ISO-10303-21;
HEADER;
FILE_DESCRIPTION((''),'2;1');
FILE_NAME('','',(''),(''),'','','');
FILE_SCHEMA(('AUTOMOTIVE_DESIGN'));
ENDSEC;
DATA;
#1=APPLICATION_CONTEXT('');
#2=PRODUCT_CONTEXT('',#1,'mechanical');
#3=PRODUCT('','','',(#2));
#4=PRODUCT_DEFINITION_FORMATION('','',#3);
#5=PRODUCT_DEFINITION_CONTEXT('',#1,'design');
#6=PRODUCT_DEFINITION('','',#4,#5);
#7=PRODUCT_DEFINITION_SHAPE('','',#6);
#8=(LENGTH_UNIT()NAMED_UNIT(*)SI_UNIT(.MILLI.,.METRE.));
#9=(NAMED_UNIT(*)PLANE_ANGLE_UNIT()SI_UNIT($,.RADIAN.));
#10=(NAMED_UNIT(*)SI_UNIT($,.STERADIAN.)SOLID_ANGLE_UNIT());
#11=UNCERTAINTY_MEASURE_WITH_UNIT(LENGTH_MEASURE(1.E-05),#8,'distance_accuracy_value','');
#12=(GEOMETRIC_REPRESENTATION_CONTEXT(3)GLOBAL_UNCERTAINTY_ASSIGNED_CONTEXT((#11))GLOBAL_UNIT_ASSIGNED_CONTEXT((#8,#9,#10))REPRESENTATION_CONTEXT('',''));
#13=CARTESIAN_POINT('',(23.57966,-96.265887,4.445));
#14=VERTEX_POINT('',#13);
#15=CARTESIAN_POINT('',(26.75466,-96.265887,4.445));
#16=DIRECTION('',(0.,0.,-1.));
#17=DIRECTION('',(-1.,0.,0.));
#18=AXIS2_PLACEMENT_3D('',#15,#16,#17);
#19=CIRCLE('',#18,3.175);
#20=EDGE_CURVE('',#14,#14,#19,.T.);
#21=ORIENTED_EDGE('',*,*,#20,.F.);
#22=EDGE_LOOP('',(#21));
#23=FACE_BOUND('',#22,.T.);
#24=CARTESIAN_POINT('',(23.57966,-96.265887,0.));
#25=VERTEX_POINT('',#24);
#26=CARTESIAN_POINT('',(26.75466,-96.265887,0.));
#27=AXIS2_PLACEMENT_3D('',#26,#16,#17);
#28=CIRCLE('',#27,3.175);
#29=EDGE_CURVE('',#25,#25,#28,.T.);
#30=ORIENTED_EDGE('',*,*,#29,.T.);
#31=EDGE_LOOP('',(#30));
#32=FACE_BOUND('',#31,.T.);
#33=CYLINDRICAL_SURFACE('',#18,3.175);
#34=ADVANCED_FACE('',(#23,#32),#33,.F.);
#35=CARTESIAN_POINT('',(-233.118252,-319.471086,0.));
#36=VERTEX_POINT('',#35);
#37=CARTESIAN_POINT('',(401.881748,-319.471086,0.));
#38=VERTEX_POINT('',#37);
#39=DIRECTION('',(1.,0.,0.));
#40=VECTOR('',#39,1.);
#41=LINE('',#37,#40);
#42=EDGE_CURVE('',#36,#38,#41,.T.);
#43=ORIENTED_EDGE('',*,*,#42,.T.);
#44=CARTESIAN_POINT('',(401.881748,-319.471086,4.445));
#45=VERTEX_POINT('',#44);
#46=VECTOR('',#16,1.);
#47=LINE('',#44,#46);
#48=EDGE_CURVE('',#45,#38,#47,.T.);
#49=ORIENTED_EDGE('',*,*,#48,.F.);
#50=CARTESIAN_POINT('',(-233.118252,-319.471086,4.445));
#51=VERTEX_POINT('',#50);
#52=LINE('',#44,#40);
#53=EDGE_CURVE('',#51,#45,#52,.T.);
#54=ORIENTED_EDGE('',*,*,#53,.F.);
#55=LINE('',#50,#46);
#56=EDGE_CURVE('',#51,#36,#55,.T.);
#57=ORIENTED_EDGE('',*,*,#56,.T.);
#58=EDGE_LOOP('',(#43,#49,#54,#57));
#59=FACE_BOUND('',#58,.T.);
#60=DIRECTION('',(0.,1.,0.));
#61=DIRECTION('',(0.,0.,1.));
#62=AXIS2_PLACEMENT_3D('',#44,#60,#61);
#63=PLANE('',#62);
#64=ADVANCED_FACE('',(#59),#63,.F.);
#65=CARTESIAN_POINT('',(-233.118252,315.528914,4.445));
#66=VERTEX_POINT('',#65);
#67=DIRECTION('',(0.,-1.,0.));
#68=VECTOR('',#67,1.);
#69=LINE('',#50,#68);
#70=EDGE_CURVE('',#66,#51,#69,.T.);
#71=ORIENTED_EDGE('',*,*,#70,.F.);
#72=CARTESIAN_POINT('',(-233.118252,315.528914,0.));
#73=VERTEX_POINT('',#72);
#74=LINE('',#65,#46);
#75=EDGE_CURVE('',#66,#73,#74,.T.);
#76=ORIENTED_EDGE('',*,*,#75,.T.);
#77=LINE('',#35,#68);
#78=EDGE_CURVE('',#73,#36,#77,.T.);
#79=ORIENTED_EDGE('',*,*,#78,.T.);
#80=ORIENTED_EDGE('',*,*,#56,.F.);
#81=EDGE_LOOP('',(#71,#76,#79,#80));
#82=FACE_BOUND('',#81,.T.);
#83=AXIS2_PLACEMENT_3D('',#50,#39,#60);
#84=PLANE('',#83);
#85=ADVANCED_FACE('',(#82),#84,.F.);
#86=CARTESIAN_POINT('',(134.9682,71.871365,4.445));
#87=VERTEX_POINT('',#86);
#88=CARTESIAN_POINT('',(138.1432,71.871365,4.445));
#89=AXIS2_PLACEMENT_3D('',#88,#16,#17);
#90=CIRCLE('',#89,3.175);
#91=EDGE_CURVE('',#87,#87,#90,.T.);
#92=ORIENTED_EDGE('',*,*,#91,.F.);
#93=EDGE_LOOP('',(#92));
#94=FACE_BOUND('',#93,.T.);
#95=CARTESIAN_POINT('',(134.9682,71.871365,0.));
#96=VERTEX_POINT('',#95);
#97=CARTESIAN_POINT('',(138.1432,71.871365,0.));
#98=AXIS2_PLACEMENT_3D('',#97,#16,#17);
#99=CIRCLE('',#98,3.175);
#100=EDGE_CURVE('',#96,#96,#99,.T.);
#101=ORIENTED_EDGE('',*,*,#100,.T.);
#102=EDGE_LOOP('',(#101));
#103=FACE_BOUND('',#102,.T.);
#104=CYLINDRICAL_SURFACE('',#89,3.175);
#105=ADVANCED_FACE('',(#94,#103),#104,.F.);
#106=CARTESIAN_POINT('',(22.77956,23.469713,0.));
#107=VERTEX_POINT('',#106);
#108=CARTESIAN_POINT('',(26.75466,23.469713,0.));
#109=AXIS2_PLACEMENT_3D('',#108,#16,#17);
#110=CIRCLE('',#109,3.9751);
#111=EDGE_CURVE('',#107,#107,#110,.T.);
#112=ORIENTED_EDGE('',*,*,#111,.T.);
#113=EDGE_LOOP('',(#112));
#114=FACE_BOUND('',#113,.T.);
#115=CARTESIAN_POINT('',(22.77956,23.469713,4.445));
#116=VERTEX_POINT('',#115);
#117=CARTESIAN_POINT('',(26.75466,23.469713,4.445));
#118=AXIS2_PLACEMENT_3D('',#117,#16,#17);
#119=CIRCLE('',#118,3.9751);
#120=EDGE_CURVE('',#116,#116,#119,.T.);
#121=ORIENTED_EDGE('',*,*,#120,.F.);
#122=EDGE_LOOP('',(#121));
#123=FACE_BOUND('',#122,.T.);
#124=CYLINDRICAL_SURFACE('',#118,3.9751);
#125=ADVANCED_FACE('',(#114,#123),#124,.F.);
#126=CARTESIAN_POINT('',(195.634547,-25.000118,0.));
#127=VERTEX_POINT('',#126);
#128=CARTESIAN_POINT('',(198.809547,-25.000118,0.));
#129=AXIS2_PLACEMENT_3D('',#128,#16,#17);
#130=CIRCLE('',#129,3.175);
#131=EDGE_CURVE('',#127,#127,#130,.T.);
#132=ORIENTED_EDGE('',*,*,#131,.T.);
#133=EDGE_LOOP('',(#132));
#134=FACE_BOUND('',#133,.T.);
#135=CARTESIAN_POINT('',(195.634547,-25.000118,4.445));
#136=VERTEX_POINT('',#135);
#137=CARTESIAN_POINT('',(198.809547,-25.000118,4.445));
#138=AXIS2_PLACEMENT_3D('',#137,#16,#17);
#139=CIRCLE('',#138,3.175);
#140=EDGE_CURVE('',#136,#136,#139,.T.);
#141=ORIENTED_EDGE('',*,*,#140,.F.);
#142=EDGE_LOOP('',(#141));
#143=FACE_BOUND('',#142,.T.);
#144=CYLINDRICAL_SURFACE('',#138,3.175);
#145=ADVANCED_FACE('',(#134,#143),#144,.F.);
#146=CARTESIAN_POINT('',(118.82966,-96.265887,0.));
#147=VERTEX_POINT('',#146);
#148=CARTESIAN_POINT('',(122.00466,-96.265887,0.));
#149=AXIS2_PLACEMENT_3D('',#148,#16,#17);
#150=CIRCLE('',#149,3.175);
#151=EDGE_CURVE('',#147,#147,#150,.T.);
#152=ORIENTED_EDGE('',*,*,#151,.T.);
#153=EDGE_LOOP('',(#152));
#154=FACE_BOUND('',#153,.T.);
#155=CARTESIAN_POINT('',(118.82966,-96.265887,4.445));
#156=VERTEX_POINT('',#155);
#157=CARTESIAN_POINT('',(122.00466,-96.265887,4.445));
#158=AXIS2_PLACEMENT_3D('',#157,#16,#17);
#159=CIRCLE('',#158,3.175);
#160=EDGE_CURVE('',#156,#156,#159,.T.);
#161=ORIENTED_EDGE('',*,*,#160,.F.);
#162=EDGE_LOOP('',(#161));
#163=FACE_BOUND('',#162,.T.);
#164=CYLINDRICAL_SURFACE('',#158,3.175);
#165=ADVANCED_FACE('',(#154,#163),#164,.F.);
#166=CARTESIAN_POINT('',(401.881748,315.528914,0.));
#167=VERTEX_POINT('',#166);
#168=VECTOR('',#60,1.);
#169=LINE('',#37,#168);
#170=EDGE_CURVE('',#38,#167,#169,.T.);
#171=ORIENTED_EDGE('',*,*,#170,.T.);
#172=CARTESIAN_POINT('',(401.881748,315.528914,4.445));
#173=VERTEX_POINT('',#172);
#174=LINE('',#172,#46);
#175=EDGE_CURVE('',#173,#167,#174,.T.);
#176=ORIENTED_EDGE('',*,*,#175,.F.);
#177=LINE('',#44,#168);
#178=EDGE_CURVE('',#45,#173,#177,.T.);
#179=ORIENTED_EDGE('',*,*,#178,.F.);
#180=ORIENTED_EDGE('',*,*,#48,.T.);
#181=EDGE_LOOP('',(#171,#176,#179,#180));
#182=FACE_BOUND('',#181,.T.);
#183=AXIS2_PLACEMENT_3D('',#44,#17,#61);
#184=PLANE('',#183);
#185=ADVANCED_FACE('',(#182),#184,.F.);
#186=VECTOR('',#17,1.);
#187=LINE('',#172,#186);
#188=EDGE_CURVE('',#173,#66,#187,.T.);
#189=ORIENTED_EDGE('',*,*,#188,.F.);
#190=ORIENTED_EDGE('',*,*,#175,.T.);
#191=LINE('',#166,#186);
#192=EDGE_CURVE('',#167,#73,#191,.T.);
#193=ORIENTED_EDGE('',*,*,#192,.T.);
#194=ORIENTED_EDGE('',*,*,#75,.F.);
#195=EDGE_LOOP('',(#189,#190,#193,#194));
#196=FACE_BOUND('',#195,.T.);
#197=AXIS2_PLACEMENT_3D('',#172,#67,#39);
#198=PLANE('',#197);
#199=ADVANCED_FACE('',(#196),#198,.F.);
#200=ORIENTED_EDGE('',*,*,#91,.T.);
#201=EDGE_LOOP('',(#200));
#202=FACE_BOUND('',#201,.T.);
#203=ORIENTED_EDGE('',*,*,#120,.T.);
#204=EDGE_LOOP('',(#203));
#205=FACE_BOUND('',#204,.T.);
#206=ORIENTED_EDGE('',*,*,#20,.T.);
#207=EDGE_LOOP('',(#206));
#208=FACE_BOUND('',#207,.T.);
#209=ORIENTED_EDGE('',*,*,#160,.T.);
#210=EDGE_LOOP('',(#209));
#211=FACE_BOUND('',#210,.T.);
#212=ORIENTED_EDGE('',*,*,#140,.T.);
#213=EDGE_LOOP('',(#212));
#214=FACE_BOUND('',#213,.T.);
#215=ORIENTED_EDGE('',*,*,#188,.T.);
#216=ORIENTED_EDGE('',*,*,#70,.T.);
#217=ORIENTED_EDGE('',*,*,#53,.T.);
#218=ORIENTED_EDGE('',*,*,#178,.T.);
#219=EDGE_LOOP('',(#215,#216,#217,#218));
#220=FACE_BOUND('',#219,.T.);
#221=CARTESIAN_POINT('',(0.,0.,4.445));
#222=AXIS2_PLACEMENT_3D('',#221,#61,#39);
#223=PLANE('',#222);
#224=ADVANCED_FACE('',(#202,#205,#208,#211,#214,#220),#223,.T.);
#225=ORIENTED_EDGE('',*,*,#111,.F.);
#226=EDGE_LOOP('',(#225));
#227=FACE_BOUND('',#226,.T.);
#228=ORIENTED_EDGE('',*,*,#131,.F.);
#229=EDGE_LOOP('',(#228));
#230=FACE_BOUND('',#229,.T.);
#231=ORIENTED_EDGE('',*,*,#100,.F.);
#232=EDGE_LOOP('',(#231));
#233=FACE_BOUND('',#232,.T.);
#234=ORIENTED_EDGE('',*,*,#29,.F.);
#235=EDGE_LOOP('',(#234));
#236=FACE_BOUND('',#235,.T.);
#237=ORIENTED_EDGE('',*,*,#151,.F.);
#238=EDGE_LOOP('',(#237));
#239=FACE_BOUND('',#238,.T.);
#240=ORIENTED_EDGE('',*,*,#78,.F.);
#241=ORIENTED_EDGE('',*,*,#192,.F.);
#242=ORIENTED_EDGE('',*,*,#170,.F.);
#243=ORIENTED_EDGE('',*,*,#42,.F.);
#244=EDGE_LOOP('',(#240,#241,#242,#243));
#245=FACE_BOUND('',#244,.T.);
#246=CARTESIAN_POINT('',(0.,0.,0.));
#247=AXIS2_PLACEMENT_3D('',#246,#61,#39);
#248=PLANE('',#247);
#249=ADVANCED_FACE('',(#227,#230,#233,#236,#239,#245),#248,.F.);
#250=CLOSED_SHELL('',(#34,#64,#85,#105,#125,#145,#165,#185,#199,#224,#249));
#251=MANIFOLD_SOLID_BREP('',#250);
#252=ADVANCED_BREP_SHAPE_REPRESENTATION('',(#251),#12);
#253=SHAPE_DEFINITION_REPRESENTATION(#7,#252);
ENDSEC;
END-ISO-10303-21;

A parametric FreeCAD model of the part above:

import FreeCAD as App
import Part
import Sketcher
from FreeCAD import Vector
Q = App.Units.Quantity

doc = App.newDocument("Part")
body = doc.addObject("PartDesign::Body", "Body")

# Sketch on XY plane
sketch1 = body.newObject("Sketcher::SketchObject", "Sketch")
sketch1.AttachmentSupport = (doc.getObject("XY_Plane"), [""])
sketch1.MapMode = "FlatFace"
sketch1.addGeometry([
    Part.LineSegment(Vector(-233.118252, 315.528914, 0), Vector(-233.118252, -319.471086, 0)),
    Part.LineSegment(Vector(-233.118252, -319.471086, 0), Vector(401.881748, -319.471086, 0)),
    Part.LineSegment(Vector(401.881748, -319.471086, 0), Vector(401.881748, 315.528914, 0)),
    Part.LineSegment(Vector(401.881748, 315.528914, 0), Vector(-233.118252, 315.528914, 0)),
], False)
sketch1.addConstraint([
    Sketcher.Constraint("Coincident", 0, 2, 1, 1),
    Sketcher.Constraint("Coincident", 1, 2, 2, 1),
    Sketcher.Constraint("Coincident", 2, 2, 3, 1),
    Sketcher.Constraint("Coincident", 3, 2, 0, 1),
    Sketcher.Constraint("Vertical", 0),
    Sketcher.Constraint("Horizontal", 1),
    Sketcher.Constraint("Vertical", 2),
    Sketcher.Constraint("Horizontal", 3),
    Sketcher.Constraint("Equal", 3, 0),
    Sketcher.Constraint("DistanceX", 1, 1, 1, 2, Q("25 in")),
    Sketcher.Constraint("DistanceX", 0, 2, -1, 1, Q("233.118252 mm")),
    Sketcher.Constraint("DistanceY", 0, 2, -1, 1, Q("319.471086 mm")),
])
pad1 = body.newObject("PartDesign::Pad", "Pad")
pad1.Profile = sketch1
pad1.Length = Q("0.175 in")

# Sketch on XY plane
sketch2 = body.newObject("Sketcher::SketchObject", "Sketch001")
sketch2.AttachmentSupport = (doc.getObject("XY_Plane"), [""])
sketch2.MapMode = "FlatFace"
sketch2.addGeometry([
    Part.Circle(Vector(138.1432, 71.871365, 0), Vector(0, 0, 1), 3.175),  # 0
    Part.Circle(Vector(198.809547, -25.000118, 0), Vector(0, 0, 1), 3.175),  # 1
    Part.Circle(Vector(122.00466, -96.265887, 0), Vector(0, 0, 1), 3.175),  # 2
    Part.Circle(Vector(26.75466, -96.265887, 0), Vector(0, 0, 1), 3.175),  # 3
    Part.Circle(Vector(26.75466, 23.469713, 0), Vector(0, 0, 1), 3.9751),  # 4
], False)
sketch2.addConstraint([
    Sketcher.Constraint("Equal", 0, 1),
    Sketcher.Constraint("Equal", 1, 2),
    Sketcher.Constraint("Equal", 2, 3),
    Sketcher.Constraint("Horizontal", 2, 3, 3, 3),
    Sketcher.Constraint("Vertical", 3, 3, 4, 3),
    Sketcher.Constraint("Diameter", 0, Q("0.25 in")),
    Sketcher.Constraint("Diameter", 4, Q("0.313 in")),
    Sketcher.Constraint("DistanceX", 3, 3, 2, 3, Q("3.75 in")),
    Sketcher.Constraint("DistanceY", 3, 3, 4, 3, Q("4.714 in")),
    Sketcher.Constraint("DistanceX", -1, 1, 0, 3, Q("138.1432 mm")),
    Sketcher.Constraint("DistanceY", 1, 3, -1, 1, Q("25.000118 mm")),
    Sketcher.Constraint("DistanceX", -1, 1, 2, 3, Q("122.00466 mm")),
    Sketcher.Constraint("DistanceY", 2, 3, 1, 3, Q("71.265769 mm")),
    Sketcher.Constraint("DistanceY", -1, 1, 0, 3, Q("71.871365 mm")),
    Sketcher.Constraint("DistanceX", -1, 1, 1, 3, Q("198.809547 mm")),
])
pocket1 = body.newObject("PartDesign::Pocket", "Pocket")
pocket1.Profile = sketch2
pocket1.Type = "ThroughAll"
pocket1.Reversed = True

doc.recompute()
